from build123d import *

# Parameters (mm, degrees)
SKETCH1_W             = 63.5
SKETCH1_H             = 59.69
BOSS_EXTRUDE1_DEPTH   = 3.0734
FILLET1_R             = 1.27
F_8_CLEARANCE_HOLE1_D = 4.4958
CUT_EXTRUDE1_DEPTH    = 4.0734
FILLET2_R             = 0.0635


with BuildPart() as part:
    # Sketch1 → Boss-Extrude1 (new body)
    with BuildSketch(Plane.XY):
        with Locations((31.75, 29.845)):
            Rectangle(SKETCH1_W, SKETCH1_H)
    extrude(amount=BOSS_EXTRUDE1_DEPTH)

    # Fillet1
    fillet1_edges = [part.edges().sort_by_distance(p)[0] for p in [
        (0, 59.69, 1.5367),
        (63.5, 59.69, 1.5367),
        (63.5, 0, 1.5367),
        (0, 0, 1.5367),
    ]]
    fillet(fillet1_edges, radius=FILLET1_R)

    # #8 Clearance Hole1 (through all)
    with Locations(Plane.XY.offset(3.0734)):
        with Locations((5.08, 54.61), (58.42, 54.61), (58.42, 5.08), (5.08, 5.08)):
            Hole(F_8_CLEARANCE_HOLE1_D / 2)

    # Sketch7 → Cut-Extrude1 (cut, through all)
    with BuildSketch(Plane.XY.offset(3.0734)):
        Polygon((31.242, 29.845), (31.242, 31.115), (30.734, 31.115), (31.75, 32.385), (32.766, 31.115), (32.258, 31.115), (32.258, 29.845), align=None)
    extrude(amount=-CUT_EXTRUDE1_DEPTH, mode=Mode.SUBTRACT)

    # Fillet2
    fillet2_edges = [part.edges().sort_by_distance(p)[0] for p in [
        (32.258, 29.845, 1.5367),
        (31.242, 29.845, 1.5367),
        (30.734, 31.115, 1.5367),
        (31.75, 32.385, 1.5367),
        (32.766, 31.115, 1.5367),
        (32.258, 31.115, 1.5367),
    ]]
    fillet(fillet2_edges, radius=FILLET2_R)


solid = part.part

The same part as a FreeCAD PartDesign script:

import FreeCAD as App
import Part
import Sketcher
from FreeCAD import Vector
Q = App.Units.Quantity


def edges_at(feature, points):
    """Names of the edges that pass closest to the given points."""
    edges = feature.Shape.Edges
    near = lambda p: min(range(len(edges)), key=lambda i: edges[i].distToShape(Part.Vertex(*p))[0])
    return sorted({f"Edge{near(p) + 1}" for p in points})


def add_polygon(sketch, points):
    """Adds a closed chain of lines whose ends are joined by coincident constraints."""
    first, n = sketch.GeometryCount, len(points)
    for a, b in zip(points, points[1:] + points[:1]):
        sketch.addGeometry(Part.LineSegment(App.Vector(*a, 0), App.Vector(*b, 0)), False)
    for i in range(n):
        sketch.addConstraint(Sketcher.Constraint("Coincident", first + i, 2, first + (i + 1) % n, 1))

doc = App.newDocument("Part")
body = doc.addObject("PartDesign::Body", "Body")

sketch1 = doc.addObject("Sketcher::SketchObject", "Sketch")
body.addObject(sketch1)
sketch1.AttachmentSupport = (doc.XY_Plane, [""])
sketch1.MapMode = "FlatFace"
add_polygon(sketch1, [(0, 60), (0, 0), (64, 0), (64, 60)])
sketch1.addConstraint([
    Sketcher.Constraint("Vertical", 0),
    Sketcher.Constraint("Horizontal", 1),
    Sketcher.Constraint("Vertical", 2),
    Sketcher.Constraint("Horizontal", 3),
    Sketcher.Constraint("Coincident", 0, 2, -1, 1),
    Sketcher.Constraint("DistanceX", 1, 1, 1, 2, Q("2.5 in")),
    Sketcher.Constraint("DistanceY", 0, 2, 0, 1, Q("2.35 in")),
])
pad1 = doc.addObject("PartDesign::Pad", "Pad")
body.addObject(pad1)
pad1.Profile = sketch1
pad1.Length = Q("0.121 in")
doc.recompute()

fillet = doc.addObject("PartDesign::Fillet", "Fillet")
body.addObject(fillet)
fillet.Base = (pad1, edges_at(pad1, [
    (0, 59.69, 1.537),
    (63.5, 59.69, 1.537),
    (63.5, 0, 1.537),
    (0, 0, 1.537),
]))
fillet.Radius = Q("0.05 in")

sketch2 = doc.addObject("Sketcher::SketchObject", "Sketch001")
body.addObject(sketch2)
sketch2.AttachmentSupport = (doc.XY_Plane, [""])
sketch2.MapMode = "FlatFace"
sketch2.AttachmentOffset = App.Placement(Vector(0, 0, 0.121 * 25.4), App.Rotation())
sketch2.addGeometry([
    Part.Circle(Vector(5.1, 54.6, 0), Vector(0, 0, 1), 2.2),
    Part.Circle(Vector(58.4, 54.6, 0), Vector(0, 0, 1), 2.2),
    Part.Circle(Vector(58.4, 5.1, 0), Vector(0, 0, 1), 2.2),
    Part.Circle(Vector(5.1, 5.1, 0), Vector(0, 0, 1), 2.2),
], False)
sketch2.addConstraint([
    Sketcher.Constraint("Equal", 0, 1),
    Sketcher.Constraint("Equal", 1, 2),
    Sketcher.Constraint("Equal", 2, 3),
    Sketcher.Constraint("Horizontal", 0, 3, 1, 3),
    Sketcher.Constraint("Horizontal", 2, 3, 3, 3),
    Sketcher.Constraint("Vertical", 1, 3, 2, 3),
    Sketcher.Constraint("Vertical", 0, 3, 3, 3),
    Sketcher.Constraint("Diameter", 0, Q("0.177 in")),
    Sketcher.Constraint("DistanceX", -1, 1, 0, 3, Q("0.2 in")),
    Sketcher.Constraint("DistanceX", -1, 1, 1, 3, Q("2.3 in")),
    Sketcher.Constraint("DistanceY", -1, 1, 2, 3, Q("0.2 in")),
    Sketcher.Constraint("DistanceY", -1, 1, 0, 3, Q("2.15 in")),
])
doc.recompute()
hole = doc.addObject("PartDesign::Hole", "Hole")
body.addObject(hole)
hole.Profile = sketch2
hole.ThreadType = "None"
hole.Diameter = Q("0.177 in")
hole.DepthType = "ThroughAll"

sketch3 = doc.addObject("Sketcher::SketchObject", "Sketch002")
body.addObject(sketch3)
sketch3.AttachmentSupport = (doc.XY_Plane, [""])
sketch3.MapMode = "FlatFace"
sketch3.AttachmentOffset = App.Placement(Vector(0, 0, 0.121 * 25.4), App.Rotation())
add_polygon(sketch3, [(31.2, 31.1), (31.2, 29.8), (32.3, 29.8), (32.3, 31.1), (32.8, 31.1), (31.8, 32.4), (30.7, 31.1)])
sketch3.addConstraint([
    Sketcher.Constraint("Vertical", 0),
    Sketcher.Constraint("Horizontal", 1),
    Sketcher.Constraint("Vertical", 2),
    Sketcher.Constraint("Horizontal", 3),
    Sketcher.Constraint("Horizontal", 6),
    Sketcher.Constraint("Horizontal", 3, 2, 5, 2),
    Sketcher.Constraint("Equal", 3, 6),
    Sketcher.Constraint("Equal", 4, 5),
    Sketcher.Constraint("DistanceX", 1, 1, 1, 2, Q("0.04 in")),
    Sketcher.Constraint("DistanceX", 3, 1, 3, 2, Q("0.02 in")),
    Sketcher.Constraint("DistanceY", 0, 2, 0, 1, Q("0.05 in")),
    Sketcher.Constraint("DistanceY", 0, 2, 4, 2, Q("0.1 in")),
    Sketcher.Constraint("DistanceX", -1, 1, 0, 2, Q("1.23 in")),
    Sketcher.Constraint("DistanceY", -1, 1, 0, 2, Q("1.175 in")),
])
pocket1 = doc.addObject("PartDesign::Pocket", "Pocket")
body.addObject(pocket1)
pocket1.Profile = sketch3
pocket1.Type = "ThroughAll"
doc.recompute()

fillet2 = doc.addObject("PartDesign::Fillet", "Fillet001")
body.addObject(fillet2)
fillet2.Base = (pocket1, edges_at(pocket1, [
    (32.258, 29.845, 1.537),
    (31.242, 29.845, 1.537),
    (30.734, 31.115, 1.537),
    (31.75, 32.385, 1.537),
    (32.766, 31.115, 1.537),
    (32.258, 31.115, 1.537),
]))
fillet2.Radius = Q("0.0025 in")

doc.recompute()
